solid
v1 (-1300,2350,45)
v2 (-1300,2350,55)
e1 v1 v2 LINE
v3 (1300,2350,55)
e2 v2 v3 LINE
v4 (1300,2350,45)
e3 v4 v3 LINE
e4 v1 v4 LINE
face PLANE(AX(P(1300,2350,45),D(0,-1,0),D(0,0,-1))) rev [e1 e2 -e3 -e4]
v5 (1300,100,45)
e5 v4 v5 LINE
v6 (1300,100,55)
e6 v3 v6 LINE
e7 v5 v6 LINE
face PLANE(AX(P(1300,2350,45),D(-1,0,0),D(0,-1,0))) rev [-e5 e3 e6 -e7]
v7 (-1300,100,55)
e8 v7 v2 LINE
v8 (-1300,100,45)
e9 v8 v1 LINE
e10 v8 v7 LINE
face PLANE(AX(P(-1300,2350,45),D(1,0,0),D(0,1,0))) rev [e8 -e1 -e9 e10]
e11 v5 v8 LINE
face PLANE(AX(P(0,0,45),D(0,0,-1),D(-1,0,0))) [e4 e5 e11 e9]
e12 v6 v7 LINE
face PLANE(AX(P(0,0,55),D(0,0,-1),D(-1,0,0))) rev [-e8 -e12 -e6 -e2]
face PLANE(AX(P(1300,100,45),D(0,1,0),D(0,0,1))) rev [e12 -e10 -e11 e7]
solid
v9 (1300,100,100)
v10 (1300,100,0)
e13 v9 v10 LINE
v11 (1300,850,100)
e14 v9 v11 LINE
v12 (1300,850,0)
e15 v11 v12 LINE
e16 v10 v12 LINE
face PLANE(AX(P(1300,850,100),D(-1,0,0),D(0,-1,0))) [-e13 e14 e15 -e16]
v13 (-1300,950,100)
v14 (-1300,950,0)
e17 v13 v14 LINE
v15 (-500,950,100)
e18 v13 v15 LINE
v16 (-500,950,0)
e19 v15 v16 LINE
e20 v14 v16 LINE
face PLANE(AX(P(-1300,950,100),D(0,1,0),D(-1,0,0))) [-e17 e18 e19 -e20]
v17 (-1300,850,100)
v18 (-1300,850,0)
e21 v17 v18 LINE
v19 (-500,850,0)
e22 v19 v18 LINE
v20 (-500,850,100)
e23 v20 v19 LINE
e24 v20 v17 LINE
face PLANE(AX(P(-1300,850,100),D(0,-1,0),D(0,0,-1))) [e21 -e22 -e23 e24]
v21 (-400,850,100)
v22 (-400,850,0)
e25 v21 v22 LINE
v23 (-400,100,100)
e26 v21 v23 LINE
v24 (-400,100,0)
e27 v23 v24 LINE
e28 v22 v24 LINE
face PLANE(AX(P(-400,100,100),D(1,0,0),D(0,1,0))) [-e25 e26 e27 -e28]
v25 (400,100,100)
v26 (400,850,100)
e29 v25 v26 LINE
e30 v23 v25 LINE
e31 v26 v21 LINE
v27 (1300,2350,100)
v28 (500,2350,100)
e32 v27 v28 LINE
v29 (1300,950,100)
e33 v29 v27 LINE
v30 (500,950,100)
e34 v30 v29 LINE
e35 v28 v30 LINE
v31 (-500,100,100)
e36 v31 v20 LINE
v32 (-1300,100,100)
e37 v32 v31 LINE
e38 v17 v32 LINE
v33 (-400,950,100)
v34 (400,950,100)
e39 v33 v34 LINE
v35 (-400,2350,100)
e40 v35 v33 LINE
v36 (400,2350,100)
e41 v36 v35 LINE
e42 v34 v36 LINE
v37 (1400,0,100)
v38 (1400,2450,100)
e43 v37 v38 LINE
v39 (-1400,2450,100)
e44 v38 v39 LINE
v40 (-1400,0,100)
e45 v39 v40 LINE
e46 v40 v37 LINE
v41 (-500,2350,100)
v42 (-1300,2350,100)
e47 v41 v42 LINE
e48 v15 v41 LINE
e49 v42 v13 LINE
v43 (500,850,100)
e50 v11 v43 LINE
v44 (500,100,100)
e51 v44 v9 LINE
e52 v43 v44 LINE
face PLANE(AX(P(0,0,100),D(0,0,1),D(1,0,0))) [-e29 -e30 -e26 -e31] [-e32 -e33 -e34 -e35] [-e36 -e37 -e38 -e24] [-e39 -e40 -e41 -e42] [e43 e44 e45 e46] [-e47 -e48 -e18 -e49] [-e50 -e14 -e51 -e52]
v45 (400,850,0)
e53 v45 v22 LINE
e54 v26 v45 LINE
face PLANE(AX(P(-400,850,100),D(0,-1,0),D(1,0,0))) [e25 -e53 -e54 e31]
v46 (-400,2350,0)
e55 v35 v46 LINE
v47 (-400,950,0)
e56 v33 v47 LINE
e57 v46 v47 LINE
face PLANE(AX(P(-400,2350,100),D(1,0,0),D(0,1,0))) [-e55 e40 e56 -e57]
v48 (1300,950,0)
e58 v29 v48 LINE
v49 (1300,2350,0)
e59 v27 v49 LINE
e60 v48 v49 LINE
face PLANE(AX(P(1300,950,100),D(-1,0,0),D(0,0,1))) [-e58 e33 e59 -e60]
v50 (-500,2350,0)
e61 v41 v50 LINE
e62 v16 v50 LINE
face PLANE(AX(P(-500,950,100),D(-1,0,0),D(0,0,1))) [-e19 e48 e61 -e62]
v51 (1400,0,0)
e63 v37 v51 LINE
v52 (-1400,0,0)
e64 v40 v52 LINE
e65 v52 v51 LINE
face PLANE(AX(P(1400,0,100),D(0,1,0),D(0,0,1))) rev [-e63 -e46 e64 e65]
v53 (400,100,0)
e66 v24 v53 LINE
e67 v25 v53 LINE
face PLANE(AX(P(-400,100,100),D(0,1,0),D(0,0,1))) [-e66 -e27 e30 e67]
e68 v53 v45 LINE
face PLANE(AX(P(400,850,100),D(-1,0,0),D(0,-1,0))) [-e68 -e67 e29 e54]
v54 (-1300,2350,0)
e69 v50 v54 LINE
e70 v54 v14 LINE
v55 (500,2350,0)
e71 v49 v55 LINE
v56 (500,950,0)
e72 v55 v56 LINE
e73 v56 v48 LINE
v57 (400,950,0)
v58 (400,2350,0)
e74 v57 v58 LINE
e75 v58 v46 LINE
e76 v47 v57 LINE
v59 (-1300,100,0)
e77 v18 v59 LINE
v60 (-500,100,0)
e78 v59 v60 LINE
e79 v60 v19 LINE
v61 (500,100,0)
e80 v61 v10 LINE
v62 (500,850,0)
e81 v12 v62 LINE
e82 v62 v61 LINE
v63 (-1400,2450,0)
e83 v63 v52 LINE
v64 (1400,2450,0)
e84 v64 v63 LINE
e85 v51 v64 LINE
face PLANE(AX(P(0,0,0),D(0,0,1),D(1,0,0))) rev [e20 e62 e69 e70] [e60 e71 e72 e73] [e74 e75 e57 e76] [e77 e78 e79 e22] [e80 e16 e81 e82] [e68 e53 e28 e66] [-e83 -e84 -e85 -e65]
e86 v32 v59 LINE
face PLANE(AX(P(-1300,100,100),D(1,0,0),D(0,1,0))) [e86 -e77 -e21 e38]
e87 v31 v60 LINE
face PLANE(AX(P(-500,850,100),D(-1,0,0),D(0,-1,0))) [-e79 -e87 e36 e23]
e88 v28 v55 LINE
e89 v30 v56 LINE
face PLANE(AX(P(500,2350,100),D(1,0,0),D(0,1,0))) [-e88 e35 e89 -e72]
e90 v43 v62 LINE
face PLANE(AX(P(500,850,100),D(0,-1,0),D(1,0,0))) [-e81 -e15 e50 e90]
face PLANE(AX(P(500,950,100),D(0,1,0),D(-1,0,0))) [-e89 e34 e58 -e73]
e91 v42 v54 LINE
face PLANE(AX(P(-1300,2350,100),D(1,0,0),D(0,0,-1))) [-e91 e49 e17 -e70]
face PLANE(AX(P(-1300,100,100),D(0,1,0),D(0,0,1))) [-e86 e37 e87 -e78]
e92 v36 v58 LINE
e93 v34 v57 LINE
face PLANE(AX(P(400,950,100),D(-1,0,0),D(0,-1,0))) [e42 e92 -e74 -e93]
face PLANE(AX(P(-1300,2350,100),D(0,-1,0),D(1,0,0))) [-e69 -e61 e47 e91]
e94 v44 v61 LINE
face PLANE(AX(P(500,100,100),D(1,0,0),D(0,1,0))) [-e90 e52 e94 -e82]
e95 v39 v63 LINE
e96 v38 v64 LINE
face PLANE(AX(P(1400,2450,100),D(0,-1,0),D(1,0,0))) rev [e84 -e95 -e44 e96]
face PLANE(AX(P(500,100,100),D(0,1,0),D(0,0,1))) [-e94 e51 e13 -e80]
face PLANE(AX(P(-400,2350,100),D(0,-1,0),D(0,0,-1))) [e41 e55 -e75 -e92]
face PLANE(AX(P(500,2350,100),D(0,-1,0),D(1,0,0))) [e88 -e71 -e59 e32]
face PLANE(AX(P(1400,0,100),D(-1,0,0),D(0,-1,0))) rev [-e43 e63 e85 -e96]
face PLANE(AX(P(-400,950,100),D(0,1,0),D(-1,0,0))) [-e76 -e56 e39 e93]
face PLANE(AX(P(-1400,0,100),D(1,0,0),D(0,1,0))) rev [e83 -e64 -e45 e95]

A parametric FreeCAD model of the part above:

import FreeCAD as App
import Part
import Sketcher

V = App.Vector
Q = App.Units.Quantity

doc = App.newDocument("Part")
body = doc.addObject("PartDesign::Body", "Body")

sketch1 = doc.addObject("Sketcher::SketchObject", "Sketch")
body.addObject(sketch1)
sketch1.AttachmentSupport = (doc.XY_Plane, [""])
sketch1.MapMode = "FlatFace"
sketch1.addGeometry(Part.LineSegment(V(-1400, 2450, 0), V(-1400, 0, 0)), False)
sketch1.addGeometry(Part.LineSegment(V(-1400, 0, 0), V(1400, 0, 0)), False)
sketch1.addGeometry(Part.LineSegment(V(1400, 0, 0), V(1400, 2450, 0)), False)
sketch1.addGeometry(Part.LineSegment(V(1400, 2450, 0), V(-1400, 2450, 0)), False)
sketch1.addGeometry(Part.LineSegment(V(-500, 100, 0), V(-1300, 100, 0)), False)
sketch1.addGeometry(Part.LineSegment(V(-1300, 100, 0), V(-1300, 850, 0)), False)
sketch1.addGeometry(Part.LineSegment(V(-1300, 850, 0), V(-500, 850, 0)), False)
sketch1.addGeometry(Part.LineSegment(V(-500, 850, 0), V(-500, 100, 0)), False)
sketch1.addGeometry(Part.LineSegment(V(400, 100, 0), V(-400, 100, 0)), False)
sketch1.addGeometry(Part.LineSegment(V(-400, 100, 0), V(-400, 850, 0)), False)
sketch1.addGeometry(Part.LineSegment(V(-400, 850, 0), V(400, 850, 0)), False)
sketch1.addGeometry(Part.LineSegment(V(400, 850, 0), V(400, 100, 0)), False)
sketch1.addGeometry(Part.LineSegment(V(1300, 100, 0), V(500, 100, 0)), False)
sketch1.addGeometry(Part.LineSegment(V(500, 100, 0), V(500, 850, 0)), False)
sketch1.addGeometry(Part.LineSegment(V(500, 850, 0), V(1300, 850, 0)), False)
sketch1.addGeometry(Part.LineSegment(V(1300, 850, 0), V(1300, 100, 0)), False)
sketch1.addGeometry(Part.LineSegment(V(-500, 950, 0), V(-1300, 950, 0)), False)
sketch1.addGeometry(Part.LineSegment(V(-1300, 950, 0), V(-1300, 2350, 0)), False)
sketch1.addGeometry(Part.LineSegment(V(-1300, 2350, 0), V(-500, 2350, 0)), False)
sketch1.addGeometry(Part.LineSegment(V(-500, 2350, 0), V(-500, 950, 0)), False)
sketch1.addGeometry(Part.LineSegment(V(400, 950, 0), V(-400, 950, 0)), False)
sketch1.addGeometry(Part.LineSegment(V(-400, 950, 0), V(-400, 2350, 0)), False)
sketch1.addGeometry(Part.LineSegment(V(-400, 2350, 0), V(400, 2350, 0)), False)
sketch1.addGeometry(Part.LineSegment(V(400, 2350, 0), V(400, 950, 0)), False)
sketch1.addGeometry(Part.LineSegment(V(1300, 950, 0), V(500, 950, 0)), False)
sketch1.addGeometry(Part.LineSegment(V(500, 950, 0), V(500, 2350, 0)), False)
sketch1.addGeometry(Part.LineSegment(V(500, 2350, 0), V(1300, 2350, 0)), False)
sketch1.addGeometry(Part.LineSegment(V(1300, 2350, 0), V(1300, 950, 0)), False)
sketch1.addConstraint(Sketcher.Constraint("Coincident", 0, 2, 1, 1))
sketch1.addConstraint(Sketcher.Constraint("Coincident", 1, 2, 2, 1))
sketch1.addConstraint(Sketcher.Constraint("Coincident", 2, 2, 3, 1))
sketch1.addConstraint(Sketcher.Constraint("Coincident", 3, 2, 0, 1))
sketch1.addConstraint(Sketcher.Constraint("Coincident", 4, 2, 5, 1))
sketch1.addConstraint(Sketcher.Constraint("Coincident", 5, 2, 6, 1))
sketch1.addConstraint(Sketcher.Constraint("Coincident", 6, 2, 7, 1))
sketch1.addConstraint(Sketcher.Constraint("Coincident", 7, 2, 4, 1))
sketch1.addConstraint(Sketcher.Constraint("Coincident", 8, 2, 9, 1))
sketch1.addConstraint(Sketcher.Constraint("Coincident", 9, 2, 10, 1))
sketch1.addConstraint(Sketcher.Constraint("Coincident", 10, 2, 11, 1))
sketch1.addConstraint(Sketcher.Constraint("Coincident", 11, 2, 8, 1))
sketch1.addConstraint(Sketcher.Constraint("Coincident", 12, 2, 13, 1))
sketch1.addConstraint(Sketcher.Constraint("Coincident", 13, 2, 14, 1))
sketch1.addConstraint(Sketcher.Constraint("Coincident", 14, 2, 15, 1))
sketch1.addConstraint(Sketcher.Constraint("Coincident", 15, 2, 12, 1))
sketch1.addConstraint(Sketcher.Constraint("Coincident", 16, 2, 17, 1))
sketch1.addConstraint(Sketcher.Constraint("Coincident", 17, 2, 18, 1))
sketch1.addConstraint(Sketcher.Constraint("Coincident", 18, 2, 19, 1))
sketch1.addConstraint(Sketcher.Constraint("Coincident", 19, 2, 16, 1))
sketch1.addConstraint(Sketcher.Constraint("Coincident", 20, 2, 21, 1))
sketch1.addConstraint(Sketcher.Constraint("Coincident", 21, 2, 22, 1))
sketch1.addConstraint(Sketcher.Constraint("Coincident", 22, 2, 23, 1))
sketch1.addConstraint(Sketcher.Constraint("Coincident", 23, 2, 20, 1))
sketch1.addConstraint(Sketcher.Constraint("Coincident", 24, 2, 25, 1))
sketch1.addConstraint(Sketcher.Constraint("Coincident", 25, 2, 26, 1))
sketch1.addConstraint(Sketcher.Constraint("Coincident", 26, 2, 27, 1))
sketch1.addConstraint(Sketcher.Constraint("Coincident", 27, 2, 24, 1))
sketch1.addConstraint(Sketcher.Constraint("Vertical", 0))
sketch1.addConstraint(Sketcher.Constraint("Horizontal", 1))
sketch1.addConstraint(Sketcher.Constraint("Vertical", 2))
sketch1.addConstraint(Sketcher.Constraint("Horizontal", 3))
sketch1.addConstraint(Sketcher.Constraint("Horizontal", 4))
sketch1.addConstraint(Sketcher.Constraint("Vertical", 5))
sketch1.addConstraint(Sketcher.Constraint("Horizontal", 6))
sketch1.addConstraint(Sketcher.Constraint("Vertical", 7))
sketch1.addConstraint(Sketcher.Constraint("Horizontal", 8))
sketch1.addConstraint(Sketcher.Constraint("Vertical", 9))
sketch1.addConstraint(Sketcher.Constraint("Horizontal", 10))
sketch1.addConstraint(Sketcher.Constraint("Vertical", 11))
sketch1.addConstraint(Sketcher.Constraint("Horizontal", 12))
sketch1.addConstraint(Sketcher.Constraint("Vertical", 13))
sketch1.addConstraint(Sketcher.Constraint("Horizontal", 14))
sketch1.addConstraint(Sketcher.Constraint("Vertical", 15))
sketch1.addConstraint(Sketcher.Constraint("Horizontal", 16))
sketch1.addConstraint(Sketcher.Constraint("Vertical", 17))
sketch1.addConstraint(Sketcher.Constraint("Horizontal", 18))
sketch1.addConstraint(Sketcher.Constraint("Vertical", 19))
sketch1.addConstraint(Sketcher.Constraint("Horizontal", 20))
sketch1.addConstraint(Sketcher.Constraint("Vertical", 21))
sketch1.addConstraint(Sketcher.Constraint("Horizontal", 22))
sketch1.addConstraint(Sketcher.Constraint("Vertical", 23))
sketch1.addConstraint(Sketcher.Constraint("Horizontal", 24))
sketch1.addConstraint(Sketcher.Constraint("Vertical", 25))
sketch1.addConstraint(Sketcher.Constraint("Horizontal", 26))
sketch1.addConstraint(Sketcher.Constraint("Vertical", 27))
sketch1.addConstraint(Sketcher.Constraint("Symmetric", 0, 2, 1, 2, -1, 1))
sketch1.addConstraint(Sketcher.Constraint("Symmetric", 7, 2, 12, 2, -2))
sketch1.addConstraint(Sketcher.Constraint("Symmetric", 5, 2, 14, 2, -2))
sketch1.addConstraint(Sketcher.Constraint("Symmetric", 19, 2, 24, 2, -2))
sketch1.addConstraint(Sketcher.Constraint("Symmetric", 17, 2, 26, 2, -2))
sketch1.addConstraint(Sketcher.Constraint("Horizontal", 7, 2, 8, 2))
sketch1.addConstraint(Sketcher.Constraint("Horizontal", 6, 2, 9, 2))
sketch1.addConstraint(Sketcher.Constraint("Horizontal", 19, 2, 20, 2))
sketch1.addConstraint(Sketcher.Constraint("Horizontal", 18, 2, 21, 2))
sketch1.addConstraint(Sketcher.Constraint("Vertical", 5, 2, 16, 2))
sketch1.addConstraint(Sketcher.Constraint("Vertical", 7, 2, 18, 2))
sketch1.addConstraint(Sketcher.Constraint("Vertical", 9, 2, 20, 2))
sketch1.addConstraint(Sketcher.Constraint("Vertical", 11, 2, 22, 2))
sketch1.addConstraint(Sketcher.Constraint("Equal", 6, 8))
sketch1.addConstraint(Sketcher.Constraint("DistanceX", 1, 1, 1, 2, Q("2800 mm")))
sketch1.addConstraint(Sketcher.Constraint("DistanceX", 4, 2, 4, 1, Q("800 mm")))
sketch1.addConstraint(Sketcher.Constraint("DistanceY", 0, 2, 0, 1, Q("2450 mm")))
sketch1.addConstraint(Sketcher.Constraint("DistanceY", 5, 1, 5, 2, Q("750 mm")))
sketch1.addConstraint(Sketcher.Constraint("DistanceY", 17, 1, 17, 2, Q("1400 mm")))
sketch1.addConstraint(Sketcher.Constraint("DistanceX", 4, 2, -1, 1, Q("1300 mm")))
sketch1.addConstraint(Sketcher.Constraint("DistanceY", -1, 1, 4, 2, Q("100 mm")))
sketch1.addConstraint(Sketcher.Constraint("DistanceX", 8, 2, -1, 1, Q("400 mm")))
sketch1.addConstraint(Sketcher.Constraint("DistanceY", -1, 1, 16, 2, Q("950 mm")))
pad1 = doc.addObject("PartDesign::Pad", "Pad")
body.addObject(pad1)
pad1.Profile = sketch1
pad1.Length = 100
body2 = doc.addObject("PartDesign::Body", "Body001")

sketch2 = doc.addObject("Sketcher::SketchObject", "Sketch001")
body2.addObject(sketch2)
sketch2.AttachmentSupport = (doc.getObject("XY_Plane001"), [""])
sketch2.MapMode = "FlatFace"
sketch2.AttachmentOffset = App.Placement(V(0, 0, 50), App.Rotation())
sketch2.addGeometry(Part.LineSegment(V(1300, 2350, 0), V(1300, 100, 0)), False)
sketch2.addGeometry(Part.LineSegment(V(1300, 100, 0), V(-1300, 100, 0)), False)
sketch2.addGeometry(Part.LineSegment(V(-1300, 100, 0), V(-1300, 2350, 0)), False)
sketch2.addGeometry(Part.LineSegment(V(-1300, 2350, 0), V(1300, 2350, 0)), False)
sketch2.addConstraint(Sketcher.Constraint("Coincident", 0, 2, 1, 1))
sketch2.addConstraint(Sketcher.Constraint("Coincident", 1, 2, 2, 1))
sketch2.addConstraint(Sketcher.Constraint("Coincident", 2, 2, 3, 1))
sketch2.addConstraint(Sketcher.Constraint("Coincident", 3, 2, 0, 1))
sketch2.addConstraint(Sketcher.Constraint("Vertical", 0))
sketch2.addConstraint(Sketcher.Constraint("Horizontal", 1))
sketch2.addConstraint(Sketcher.Constraint("Vertical", 2))
sketch2.addConstraint(Sketcher.Constraint("Horizontal", 3))
sketch2.addConstraint(Sketcher.Constraint("DistanceX", 1, 2, 1, 1, Q("2600 mm")))
sketch2.addConstraint(Sketcher.Constraint("DistanceY", 0, 2, 0, 1, Q("2250 mm")))
sketch2.addConstraint(Sketcher.Constraint("DistanceX", -1, 1, 0, 2, Q("1300 mm")))
sketch2.addConstraint(Sketcher.Constraint("DistanceY", -1, 1, 0, 2, Q("100 mm")))
pad2 = doc.addObject("PartDesign::Pad", "Pad001")
body2.addObject(pad2)
pad2.Profile = sketch2
pad2.Length = 10
pad2.Midplane = True

doc.recompute()
